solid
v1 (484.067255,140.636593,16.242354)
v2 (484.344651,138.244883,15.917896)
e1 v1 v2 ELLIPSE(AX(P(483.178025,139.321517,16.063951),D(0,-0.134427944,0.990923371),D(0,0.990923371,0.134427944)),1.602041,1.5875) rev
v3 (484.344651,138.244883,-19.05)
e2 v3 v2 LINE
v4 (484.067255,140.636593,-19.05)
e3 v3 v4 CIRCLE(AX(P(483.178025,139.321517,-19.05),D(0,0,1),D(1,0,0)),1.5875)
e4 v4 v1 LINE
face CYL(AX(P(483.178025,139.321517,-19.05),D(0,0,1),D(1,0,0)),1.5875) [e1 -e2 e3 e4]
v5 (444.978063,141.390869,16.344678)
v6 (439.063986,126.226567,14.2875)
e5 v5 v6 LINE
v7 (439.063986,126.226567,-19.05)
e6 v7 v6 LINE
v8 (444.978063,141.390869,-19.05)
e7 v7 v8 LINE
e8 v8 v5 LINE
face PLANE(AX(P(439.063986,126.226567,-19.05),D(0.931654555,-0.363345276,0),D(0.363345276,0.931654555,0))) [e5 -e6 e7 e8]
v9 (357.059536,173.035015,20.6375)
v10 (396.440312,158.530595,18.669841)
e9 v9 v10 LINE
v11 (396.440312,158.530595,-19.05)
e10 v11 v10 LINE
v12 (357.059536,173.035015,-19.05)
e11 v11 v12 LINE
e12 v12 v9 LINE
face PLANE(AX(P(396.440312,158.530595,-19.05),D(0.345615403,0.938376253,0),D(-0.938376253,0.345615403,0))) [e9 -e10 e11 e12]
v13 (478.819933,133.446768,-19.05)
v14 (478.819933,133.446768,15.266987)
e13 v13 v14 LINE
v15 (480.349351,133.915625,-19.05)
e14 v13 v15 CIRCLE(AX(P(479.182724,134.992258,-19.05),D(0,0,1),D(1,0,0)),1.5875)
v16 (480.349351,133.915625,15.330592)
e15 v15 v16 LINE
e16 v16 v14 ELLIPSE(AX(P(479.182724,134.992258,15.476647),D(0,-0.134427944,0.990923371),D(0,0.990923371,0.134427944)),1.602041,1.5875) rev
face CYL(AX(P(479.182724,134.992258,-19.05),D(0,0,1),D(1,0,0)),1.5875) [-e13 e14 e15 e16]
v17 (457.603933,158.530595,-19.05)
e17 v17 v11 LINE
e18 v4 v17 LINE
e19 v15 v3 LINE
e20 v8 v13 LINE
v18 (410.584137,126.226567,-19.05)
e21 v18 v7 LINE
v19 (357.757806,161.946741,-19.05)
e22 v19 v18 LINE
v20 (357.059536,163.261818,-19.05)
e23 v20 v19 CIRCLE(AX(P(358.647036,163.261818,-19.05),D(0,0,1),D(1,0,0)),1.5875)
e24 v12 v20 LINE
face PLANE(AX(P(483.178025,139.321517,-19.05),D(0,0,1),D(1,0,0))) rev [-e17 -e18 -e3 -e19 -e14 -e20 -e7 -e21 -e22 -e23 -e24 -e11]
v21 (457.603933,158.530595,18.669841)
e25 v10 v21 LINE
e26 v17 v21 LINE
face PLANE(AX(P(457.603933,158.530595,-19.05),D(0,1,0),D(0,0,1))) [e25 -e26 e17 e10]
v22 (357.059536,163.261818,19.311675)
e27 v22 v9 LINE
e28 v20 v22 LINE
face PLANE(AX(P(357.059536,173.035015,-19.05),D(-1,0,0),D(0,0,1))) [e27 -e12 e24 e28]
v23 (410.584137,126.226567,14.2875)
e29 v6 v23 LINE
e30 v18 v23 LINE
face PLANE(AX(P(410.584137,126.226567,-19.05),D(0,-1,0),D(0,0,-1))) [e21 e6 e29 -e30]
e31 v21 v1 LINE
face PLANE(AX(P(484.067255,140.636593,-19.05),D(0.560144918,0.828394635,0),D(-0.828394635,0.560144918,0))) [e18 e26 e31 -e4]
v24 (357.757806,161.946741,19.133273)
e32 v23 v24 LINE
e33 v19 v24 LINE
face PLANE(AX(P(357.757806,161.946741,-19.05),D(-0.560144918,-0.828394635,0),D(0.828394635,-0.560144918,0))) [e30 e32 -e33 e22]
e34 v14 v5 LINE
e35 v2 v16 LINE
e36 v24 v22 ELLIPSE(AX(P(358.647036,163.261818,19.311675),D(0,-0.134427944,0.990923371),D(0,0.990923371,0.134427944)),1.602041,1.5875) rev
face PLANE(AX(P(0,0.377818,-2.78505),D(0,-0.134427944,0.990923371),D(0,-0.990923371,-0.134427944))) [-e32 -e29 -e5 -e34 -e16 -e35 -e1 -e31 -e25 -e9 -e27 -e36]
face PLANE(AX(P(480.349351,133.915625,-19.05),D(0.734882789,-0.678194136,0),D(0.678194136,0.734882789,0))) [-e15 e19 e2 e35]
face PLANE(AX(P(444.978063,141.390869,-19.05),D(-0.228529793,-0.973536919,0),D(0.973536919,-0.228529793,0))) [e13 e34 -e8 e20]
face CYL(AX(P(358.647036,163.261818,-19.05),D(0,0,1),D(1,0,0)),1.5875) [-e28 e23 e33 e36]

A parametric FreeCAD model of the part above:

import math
import FreeCAD as App
import Part
import Sketcher

V = App.Vector
Q = App.Units.Quantity


def add_polygon(sketch, points):
    """Adds a closed chain of lines whose ends are joined by coincident constraints."""
    first, n = sketch.GeometryCount, len(points)
    for a, b in zip(points, points[1:] + points[:1]):
        sketch.addGeometry(Part.LineSegment(App.Vector(*a, 0), App.Vector(*b, 0)), False)
    for i in range(n):
        sketch.addConstraint(Sketcher.Constraint("Coincident", first + i, 2, first + (i + 1) % n, 1))

doc = App.newDocument("Part")
params = doc.addObject("Spreadsheet::Sheet", "Params")
for row, (alias, value) in enumerate([
    ("sketch1_radius", "0.0625 in"),
    ("pad1_length", "0.8125 in"),
    ("pad1_length2", "0.75 in"),
], start=1):
    params.set(f"A{row}", alias)
    params.set(f"B{row}", "=" + value)
    params.setAlias(f"B{row}", alias)

body = doc.addObject("PartDesign::Body", "Body")

# Sketch on XY plane
sketch1 = doc.addObject("Sketcher::SketchObject", "Sketch")
body.addObject(sketch1)
sketch1.AttachmentSupport = (doc.XY_Plane, [""])
sketch1.MapMode = "FlatFace"
sketch1.addGeometry(Part.LineSegment(V(357.059536, 173.035015, 0), V(357.059536, 163.261818, 0)), False)
sketch1.addGeometry(Part.ArcOfCircle(Part.Circle(V(358.647036, 163.261818, 0), V(0, 0, 1), 1.5875), math.radians(180), math.radians(235.93418)), False)
sketch1.addGeometry(Part.LineSegment(V(357.757806, 161.946741, 0), V(410.584137, 126.226567, 0)), False)
sketch1.addGeometry(Part.LineSegment(V(410.584137, 126.226567, 0), V(439.063986, 126.226567, 0)), False)
sketch1.addGeometry(Part.LineSegment(V(439.063986, 126.226567, 0), V(444.978063, 141.390869, 0)), False)
sketch1.addGeometry(Part.LineSegment(V(444.978063, 141.390869, 0), V(478.819933, 133.446768, 0)), False)
sketch1.addGeometry(Part.ArcOfCircle(Part.Circle(V(479.182724, 134.992258, 0), V(0, 0, 1), 1.5875), math.radians(-103.21053), math.radians(-42.702687)), False)
sketch1.addGeometry(Part.LineSegment(V(480.349351, 133.915625, 0), V(484.344651, 138.244883, 0)), False)
sketch1.addGeometry(Part.ArcOfCircle(Part.Circle(V(483.178025, 139.321517, 0), V(0, 0, 1), 1.5875), math.radians(-42.702687), math.radians(55.93418)), False)
sketch1.addGeometry(Part.LineSegment(V(484.067255, 140.636593, 0), V(457.603933, 158.530595, 0)), False)
sketch1.addGeometry(Part.LineSegment(V(457.603933, 158.530595, 0), V(396.440312, 158.530595, 0)), False)
sketch1.addGeometry(Part.LineSegment(V(396.440312, 158.530595, 0), V(357.059536, 173.035015, 0)), False)
sketch1.addConstraint(Sketcher.Constraint("Tangent", 0, 2, 1, 1))
sketch1.addConstraint(Sketcher.Constraint("Tangent", 1, 2, 2, 1))
sketch1.addConstraint(Sketcher.Constraint("Coincident", 2, 2, 3, 1))
sketch1.addConstraint(Sketcher.Constraint("Coincident", 3, 2, 4, 1))
sketch1.addConstraint(Sketcher.Constraint("Coincident", 4, 2, 5, 1))
sketch1.addConstraint(Sketcher.Constraint("Tangent", 5, 2, 6, 1))
sketch1.addConstraint(Sketcher.Constraint("Tangent", 6, 2, 7, 1))
sketch1.addConstraint(Sketcher.Constraint("Tangent", 7, 2, 8, 1))
sketch1.addConstraint(Sketcher.Constraint("Tangent", 8, 2, 9, 1))
sketch1.addConstraint(Sketcher.Constraint("Coincident", 9, 2, 10, 1))
sketch1.addConstraint(Sketcher.Constraint("Coincident", 10, 2, 11, 1))
sketch1.addConstraint(Sketcher.Constraint("Coincident", 11, 2, 0, 1))
sketch1.addConstraint(Sketcher.Constraint("Vertical", 0))
sketch1.addConstraint(Sketcher.Constraint("Horizontal", 3))
sketch1.addConstraint(Sketcher.Constraint("Horizontal", 10))
sketch1.addConstraint(Sketcher.Constraint("Equal", 1, 6))
sketch1.addConstraint(Sketcher.Constraint("Equal", 6, 8))
sketch1.addConstraint(Sketcher.Constraint("Parallel", 2, 9))
sketch1.addConstraint(Sketcher.Constraint("Radius", 1, Q("0.0625 in")))
sketch1.addConstraint(Sketcher.Constraint("DistanceY", 6, 3, 1, 2, Q("1.0612001 in")))
sketch1.addConstraint(Sketcher.Constraint("DistanceX", 3, 1, 3, 2, 28.479849))
sketch1.addConstraint(Sketcher.Constraint("DistanceX", 10, 2, 10, 1, 61.163621))
sketch1.addConstraint(Sketcher.Constraint("DistanceX", 6, 3, 8, 3, 3.995301))
sketch1.addConstraint(Sketcher.Constraint("DistanceY", 8, 3, 1, 3, 23.940301))
sketch1.addConstraint(Sketcher.Constraint("DistanceX", 1, 3, 2, 2, 51.937101))
sketch1.addConstraint(Sketcher.Constraint("DistanceY", 5, 2, 4, 2, 7.944101))
sketch1.addConstraint(Sketcher.Constraint("DistanceY", 3, 2, 5, 2, 7.220201))
sketch1.addConstraint(Sketcher.Constraint("DistanceY", 8, 2, 9, 2, 17.894002))
sketch1.addConstraint(Sketcher.Constraint("DistanceX", 9, 2, 5, 2, 21.216))
sketch1.addConstraint(Sketcher.Constraint("DistanceY", 0, 2, 0, 1, 9.773197))
sketch1.addConstraint(Sketcher.Constraint("DistanceY", -1, 1, 6, 3, 134.992258))
sketch1.addConstraint(Sketcher.Constraint("DistanceX", -1, 1, 6, 2, 480.349351))
sketch1.addConstraint(Sketcher.Constraint("DistanceX", 1, 3, 6, 3, 120.535688))
sketch1.setExpression("Constraints[18]", "Params.sketch1_radius")
pad1 = doc.addObject("PartDesign::Pad", "Pad")
body.addObject(pad1)
pad1.Profile = sketch1
pad1.Type = "TwoLengths"
pad1.setExpression("Length", "Params.pad1_length")
pad1.setExpression("Length2", "Params.pad1_length2")

# Sketch on an angled plane
sketch2 = doc.addObject("Sketcher::SketchObject", "Sketch001")
body.addObject(sketch2)
sketch2.Placement = App.Placement(V(0, 0.377818, -2.78505), App.Rotation(V(1, 0, 0), V(0, 0.990923371, 0.134427944), V(0, -0.134427944, 0.990923371), "ZXY"))
add_polygon(sketch2, [(350, 180), (350, 105), (500, 105), (500, 180)])  # lines 0-3
sketch2.addConstraint(Sketcher.Constraint("Vertical", 0))
sketch2.addConstraint(Sketcher.Constraint("Horizontal", 1))
sketch2.addConstraint(Sketcher.Constraint("Vertical", 2))
sketch2.addConstraint(Sketcher.Constraint("Horizontal", 3))
sketch2.addConstraint(Sketcher.Constraint("DistanceX", 1, 1, 1, 2, 149.55406))
sketch2.addConstraint(Sketcher.Constraint("DistanceY", 0, 2, 0, 1, 74.482245))
sketch2.addConstraint(Sketcher.Constraint("DistanceY", -1, 1, 2, 2, 179.753829))
sketch2.addConstraint(Sketcher.Constraint("DistanceX", -1, 1, 0, 2, 350.027205))
pocket1 = doc.addObject("PartDesign::Pocket", "Pocket")
body.addObject(pocket1)
pocket1.Profile = sketch2
pocket1.Type = "ThroughAll"
pocket1.Reversed = True

doc.recompute()
